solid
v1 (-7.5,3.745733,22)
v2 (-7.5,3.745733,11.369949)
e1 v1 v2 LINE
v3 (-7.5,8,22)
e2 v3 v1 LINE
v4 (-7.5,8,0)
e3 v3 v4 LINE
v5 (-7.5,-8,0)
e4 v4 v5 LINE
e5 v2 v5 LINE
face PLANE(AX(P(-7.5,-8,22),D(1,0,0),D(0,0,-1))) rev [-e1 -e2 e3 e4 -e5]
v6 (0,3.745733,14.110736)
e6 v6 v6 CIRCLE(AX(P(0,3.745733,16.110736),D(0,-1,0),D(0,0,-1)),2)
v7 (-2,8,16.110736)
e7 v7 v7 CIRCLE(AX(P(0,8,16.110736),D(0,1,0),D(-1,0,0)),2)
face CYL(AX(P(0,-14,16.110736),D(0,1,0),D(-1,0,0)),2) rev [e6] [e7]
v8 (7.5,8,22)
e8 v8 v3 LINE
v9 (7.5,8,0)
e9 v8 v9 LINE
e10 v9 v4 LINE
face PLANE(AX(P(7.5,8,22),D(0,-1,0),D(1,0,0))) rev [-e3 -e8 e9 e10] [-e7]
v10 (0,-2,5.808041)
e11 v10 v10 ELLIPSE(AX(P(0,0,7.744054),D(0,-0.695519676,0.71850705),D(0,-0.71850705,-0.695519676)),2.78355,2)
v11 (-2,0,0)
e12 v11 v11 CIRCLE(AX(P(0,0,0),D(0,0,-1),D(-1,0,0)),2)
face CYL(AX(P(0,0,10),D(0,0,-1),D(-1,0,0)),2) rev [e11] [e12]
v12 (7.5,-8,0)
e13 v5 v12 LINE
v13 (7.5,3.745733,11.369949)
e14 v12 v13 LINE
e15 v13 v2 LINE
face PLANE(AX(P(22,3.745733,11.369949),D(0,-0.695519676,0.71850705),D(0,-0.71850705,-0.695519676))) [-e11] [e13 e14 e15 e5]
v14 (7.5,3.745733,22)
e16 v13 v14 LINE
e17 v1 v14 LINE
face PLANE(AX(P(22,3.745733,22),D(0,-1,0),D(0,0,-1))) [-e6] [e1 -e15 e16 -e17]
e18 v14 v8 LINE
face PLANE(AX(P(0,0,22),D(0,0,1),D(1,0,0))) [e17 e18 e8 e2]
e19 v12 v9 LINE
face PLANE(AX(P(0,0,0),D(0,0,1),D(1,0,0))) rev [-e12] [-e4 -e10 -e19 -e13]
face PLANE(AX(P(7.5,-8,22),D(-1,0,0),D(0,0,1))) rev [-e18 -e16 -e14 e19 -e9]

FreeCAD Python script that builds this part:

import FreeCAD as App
import Part
import Sketcher
from FreeCAD import Vector
Q = App.Units.Quantity


def add_polygon(sketch, points):
    """Adds a closed chain of lines whose ends are joined by coincident constraints."""
    first, n = sketch.GeometryCount, len(points)
    for a, b in zip(points, points[1:] + points[:1]):
        sketch.addGeometry(Part.LineSegment(App.Vector(*a, 0), App.Vector(*b, 0)), False)
    for i in range(n):
        sketch.addConstraint(Sketcher.Constraint("Coincident", first + i, 2, first + (i + 1) % n, 1))

doc = App.newDocument("Part")
body = doc.addObject("PartDesign::Body", "Body")

# Sketch on XY plane
sketch1 = body.newObject("Sketcher::SketchObject", "Sketch")
sketch1.AttachmentSupport = (doc.getObject("XY_Plane"), [""])
sketch1.MapMode = "FlatFace"
add_polygon(sketch1, [(-8, 8), (-8, -8), (8, -8), (8, 8)])  # lines 0-3
sketch1.addConstraint([
    Sketcher.Constraint("Vertical", 0),
    Sketcher.Constraint("Horizontal", 1),
    Sketcher.Constraint("Vertical", 2),
    Sketcher.Constraint("Horizontal", 3),
    Sketcher.Constraint("Symmetric", 0, 2, 2, 2, -1, 1),
    Sketcher.Constraint("DistanceX", 1, 1, 1, 2, Q("15 mm")),
    Sketcher.Constraint("DistanceY", 0, 2, 0, 1, Q("16 mm")),
])
pad1 = body.newObject("PartDesign::Pad", "Pad")
pad1.Profile = sketch1
pad1.Length = 22

# Sketch on YZ plane
sketch2 = body.newObject("Sketcher::SketchObject", "Sketch001")
sketch2.AttachmentSupport = (doc.getObject("YZ_Plane"), [""])
sketch2.MapMode = "FlatFace"
add_polygon(sketch2, [(4, 11), (4, 22), (-8, 22), (-8, 0)])  # lines 0-3
sketch2.addConstraint([
    Sketcher.Constraint("Vertical", 0),
    Sketcher.Constraint("Horizontal", 1),
    Sketcher.Constraint("Vertical", 2),
    Sketcher.Constraint("PointOnObject", 2, 2, -1),
    Sketcher.Constraint("DistanceY", 2, 2, 2, 1, Q("22 mm")),
    Sketcher.Constraint("DistanceX", 1, 2, -1, 1, Q("8 mm")),
    Sketcher.Constraint("DistanceY", 0, 1, 0, 2, Q("10.630051 mm")),
    Sketcher.Constraint("DistanceX", 1, 2, 1, 1, Q("11.745733 mm")),
])
pocket1 = body.newObject("PartDesign::Pocket", "Pocket")
pocket1.Profile = sketch2
pocket1.Type = "ThroughAll"
pocket1.Midplane = True

# Sketch on XZ plane
sketch3 = body.newObject("Sketcher::SketchObject", "Sketch002")
sketch3.AttachmentSupport = (doc.getObject("XZ_Plane"), [""])
sketch3.MapMode = "FlatFace"
sketch3.AttachmentOffset = App.Placement(Vector(0, 0, -8), App.Rotation())
sketch3.addGeometry(Part.Circle(Vector(0, 16.1, 0), Vector(0, 0, 1), 2), False)
sketch3.addConstraint([
    Sketcher.Constraint("PointOnObject", 0, 3, -2),
    Sketcher.Constraint("Diameter", 0, Q("4 mm")),
    Sketcher.Constraint("DistanceY", -1, 1, 0, 3, Q("16.110736 mm")),
])
pocket2 = body.newObject("PartDesign::Pocket", "Pocket001")
pocket2.Profile = sketch3
pocket2.Length = 22
pocket2.Reversed = True

# Sketch on XY plane
sketch4 = body.newObject("Sketcher::SketchObject", "Sketch003")
sketch4.AttachmentSupport = (doc.getObject("XY_Plane"), [""])
sketch4.MapMode = "FlatFace"
sketch4.addGeometry(Part.Circle(Vector(0, 0, 0), Vector(0, 0, 1), 2), False)
sketch4.addConstraint([
    Sketcher.Constraint("Coincident", 0, 3, -1, 1),
    Sketcher.Constraint("Diameter", 0, Q("4 mm")),
])
pocket3 = body.newObject("PartDesign::Pocket", "Pocket002")
pocket3.Profile = sketch4
pocket3.Length = 10
pocket3.Reversed = True

doc.recompute()
